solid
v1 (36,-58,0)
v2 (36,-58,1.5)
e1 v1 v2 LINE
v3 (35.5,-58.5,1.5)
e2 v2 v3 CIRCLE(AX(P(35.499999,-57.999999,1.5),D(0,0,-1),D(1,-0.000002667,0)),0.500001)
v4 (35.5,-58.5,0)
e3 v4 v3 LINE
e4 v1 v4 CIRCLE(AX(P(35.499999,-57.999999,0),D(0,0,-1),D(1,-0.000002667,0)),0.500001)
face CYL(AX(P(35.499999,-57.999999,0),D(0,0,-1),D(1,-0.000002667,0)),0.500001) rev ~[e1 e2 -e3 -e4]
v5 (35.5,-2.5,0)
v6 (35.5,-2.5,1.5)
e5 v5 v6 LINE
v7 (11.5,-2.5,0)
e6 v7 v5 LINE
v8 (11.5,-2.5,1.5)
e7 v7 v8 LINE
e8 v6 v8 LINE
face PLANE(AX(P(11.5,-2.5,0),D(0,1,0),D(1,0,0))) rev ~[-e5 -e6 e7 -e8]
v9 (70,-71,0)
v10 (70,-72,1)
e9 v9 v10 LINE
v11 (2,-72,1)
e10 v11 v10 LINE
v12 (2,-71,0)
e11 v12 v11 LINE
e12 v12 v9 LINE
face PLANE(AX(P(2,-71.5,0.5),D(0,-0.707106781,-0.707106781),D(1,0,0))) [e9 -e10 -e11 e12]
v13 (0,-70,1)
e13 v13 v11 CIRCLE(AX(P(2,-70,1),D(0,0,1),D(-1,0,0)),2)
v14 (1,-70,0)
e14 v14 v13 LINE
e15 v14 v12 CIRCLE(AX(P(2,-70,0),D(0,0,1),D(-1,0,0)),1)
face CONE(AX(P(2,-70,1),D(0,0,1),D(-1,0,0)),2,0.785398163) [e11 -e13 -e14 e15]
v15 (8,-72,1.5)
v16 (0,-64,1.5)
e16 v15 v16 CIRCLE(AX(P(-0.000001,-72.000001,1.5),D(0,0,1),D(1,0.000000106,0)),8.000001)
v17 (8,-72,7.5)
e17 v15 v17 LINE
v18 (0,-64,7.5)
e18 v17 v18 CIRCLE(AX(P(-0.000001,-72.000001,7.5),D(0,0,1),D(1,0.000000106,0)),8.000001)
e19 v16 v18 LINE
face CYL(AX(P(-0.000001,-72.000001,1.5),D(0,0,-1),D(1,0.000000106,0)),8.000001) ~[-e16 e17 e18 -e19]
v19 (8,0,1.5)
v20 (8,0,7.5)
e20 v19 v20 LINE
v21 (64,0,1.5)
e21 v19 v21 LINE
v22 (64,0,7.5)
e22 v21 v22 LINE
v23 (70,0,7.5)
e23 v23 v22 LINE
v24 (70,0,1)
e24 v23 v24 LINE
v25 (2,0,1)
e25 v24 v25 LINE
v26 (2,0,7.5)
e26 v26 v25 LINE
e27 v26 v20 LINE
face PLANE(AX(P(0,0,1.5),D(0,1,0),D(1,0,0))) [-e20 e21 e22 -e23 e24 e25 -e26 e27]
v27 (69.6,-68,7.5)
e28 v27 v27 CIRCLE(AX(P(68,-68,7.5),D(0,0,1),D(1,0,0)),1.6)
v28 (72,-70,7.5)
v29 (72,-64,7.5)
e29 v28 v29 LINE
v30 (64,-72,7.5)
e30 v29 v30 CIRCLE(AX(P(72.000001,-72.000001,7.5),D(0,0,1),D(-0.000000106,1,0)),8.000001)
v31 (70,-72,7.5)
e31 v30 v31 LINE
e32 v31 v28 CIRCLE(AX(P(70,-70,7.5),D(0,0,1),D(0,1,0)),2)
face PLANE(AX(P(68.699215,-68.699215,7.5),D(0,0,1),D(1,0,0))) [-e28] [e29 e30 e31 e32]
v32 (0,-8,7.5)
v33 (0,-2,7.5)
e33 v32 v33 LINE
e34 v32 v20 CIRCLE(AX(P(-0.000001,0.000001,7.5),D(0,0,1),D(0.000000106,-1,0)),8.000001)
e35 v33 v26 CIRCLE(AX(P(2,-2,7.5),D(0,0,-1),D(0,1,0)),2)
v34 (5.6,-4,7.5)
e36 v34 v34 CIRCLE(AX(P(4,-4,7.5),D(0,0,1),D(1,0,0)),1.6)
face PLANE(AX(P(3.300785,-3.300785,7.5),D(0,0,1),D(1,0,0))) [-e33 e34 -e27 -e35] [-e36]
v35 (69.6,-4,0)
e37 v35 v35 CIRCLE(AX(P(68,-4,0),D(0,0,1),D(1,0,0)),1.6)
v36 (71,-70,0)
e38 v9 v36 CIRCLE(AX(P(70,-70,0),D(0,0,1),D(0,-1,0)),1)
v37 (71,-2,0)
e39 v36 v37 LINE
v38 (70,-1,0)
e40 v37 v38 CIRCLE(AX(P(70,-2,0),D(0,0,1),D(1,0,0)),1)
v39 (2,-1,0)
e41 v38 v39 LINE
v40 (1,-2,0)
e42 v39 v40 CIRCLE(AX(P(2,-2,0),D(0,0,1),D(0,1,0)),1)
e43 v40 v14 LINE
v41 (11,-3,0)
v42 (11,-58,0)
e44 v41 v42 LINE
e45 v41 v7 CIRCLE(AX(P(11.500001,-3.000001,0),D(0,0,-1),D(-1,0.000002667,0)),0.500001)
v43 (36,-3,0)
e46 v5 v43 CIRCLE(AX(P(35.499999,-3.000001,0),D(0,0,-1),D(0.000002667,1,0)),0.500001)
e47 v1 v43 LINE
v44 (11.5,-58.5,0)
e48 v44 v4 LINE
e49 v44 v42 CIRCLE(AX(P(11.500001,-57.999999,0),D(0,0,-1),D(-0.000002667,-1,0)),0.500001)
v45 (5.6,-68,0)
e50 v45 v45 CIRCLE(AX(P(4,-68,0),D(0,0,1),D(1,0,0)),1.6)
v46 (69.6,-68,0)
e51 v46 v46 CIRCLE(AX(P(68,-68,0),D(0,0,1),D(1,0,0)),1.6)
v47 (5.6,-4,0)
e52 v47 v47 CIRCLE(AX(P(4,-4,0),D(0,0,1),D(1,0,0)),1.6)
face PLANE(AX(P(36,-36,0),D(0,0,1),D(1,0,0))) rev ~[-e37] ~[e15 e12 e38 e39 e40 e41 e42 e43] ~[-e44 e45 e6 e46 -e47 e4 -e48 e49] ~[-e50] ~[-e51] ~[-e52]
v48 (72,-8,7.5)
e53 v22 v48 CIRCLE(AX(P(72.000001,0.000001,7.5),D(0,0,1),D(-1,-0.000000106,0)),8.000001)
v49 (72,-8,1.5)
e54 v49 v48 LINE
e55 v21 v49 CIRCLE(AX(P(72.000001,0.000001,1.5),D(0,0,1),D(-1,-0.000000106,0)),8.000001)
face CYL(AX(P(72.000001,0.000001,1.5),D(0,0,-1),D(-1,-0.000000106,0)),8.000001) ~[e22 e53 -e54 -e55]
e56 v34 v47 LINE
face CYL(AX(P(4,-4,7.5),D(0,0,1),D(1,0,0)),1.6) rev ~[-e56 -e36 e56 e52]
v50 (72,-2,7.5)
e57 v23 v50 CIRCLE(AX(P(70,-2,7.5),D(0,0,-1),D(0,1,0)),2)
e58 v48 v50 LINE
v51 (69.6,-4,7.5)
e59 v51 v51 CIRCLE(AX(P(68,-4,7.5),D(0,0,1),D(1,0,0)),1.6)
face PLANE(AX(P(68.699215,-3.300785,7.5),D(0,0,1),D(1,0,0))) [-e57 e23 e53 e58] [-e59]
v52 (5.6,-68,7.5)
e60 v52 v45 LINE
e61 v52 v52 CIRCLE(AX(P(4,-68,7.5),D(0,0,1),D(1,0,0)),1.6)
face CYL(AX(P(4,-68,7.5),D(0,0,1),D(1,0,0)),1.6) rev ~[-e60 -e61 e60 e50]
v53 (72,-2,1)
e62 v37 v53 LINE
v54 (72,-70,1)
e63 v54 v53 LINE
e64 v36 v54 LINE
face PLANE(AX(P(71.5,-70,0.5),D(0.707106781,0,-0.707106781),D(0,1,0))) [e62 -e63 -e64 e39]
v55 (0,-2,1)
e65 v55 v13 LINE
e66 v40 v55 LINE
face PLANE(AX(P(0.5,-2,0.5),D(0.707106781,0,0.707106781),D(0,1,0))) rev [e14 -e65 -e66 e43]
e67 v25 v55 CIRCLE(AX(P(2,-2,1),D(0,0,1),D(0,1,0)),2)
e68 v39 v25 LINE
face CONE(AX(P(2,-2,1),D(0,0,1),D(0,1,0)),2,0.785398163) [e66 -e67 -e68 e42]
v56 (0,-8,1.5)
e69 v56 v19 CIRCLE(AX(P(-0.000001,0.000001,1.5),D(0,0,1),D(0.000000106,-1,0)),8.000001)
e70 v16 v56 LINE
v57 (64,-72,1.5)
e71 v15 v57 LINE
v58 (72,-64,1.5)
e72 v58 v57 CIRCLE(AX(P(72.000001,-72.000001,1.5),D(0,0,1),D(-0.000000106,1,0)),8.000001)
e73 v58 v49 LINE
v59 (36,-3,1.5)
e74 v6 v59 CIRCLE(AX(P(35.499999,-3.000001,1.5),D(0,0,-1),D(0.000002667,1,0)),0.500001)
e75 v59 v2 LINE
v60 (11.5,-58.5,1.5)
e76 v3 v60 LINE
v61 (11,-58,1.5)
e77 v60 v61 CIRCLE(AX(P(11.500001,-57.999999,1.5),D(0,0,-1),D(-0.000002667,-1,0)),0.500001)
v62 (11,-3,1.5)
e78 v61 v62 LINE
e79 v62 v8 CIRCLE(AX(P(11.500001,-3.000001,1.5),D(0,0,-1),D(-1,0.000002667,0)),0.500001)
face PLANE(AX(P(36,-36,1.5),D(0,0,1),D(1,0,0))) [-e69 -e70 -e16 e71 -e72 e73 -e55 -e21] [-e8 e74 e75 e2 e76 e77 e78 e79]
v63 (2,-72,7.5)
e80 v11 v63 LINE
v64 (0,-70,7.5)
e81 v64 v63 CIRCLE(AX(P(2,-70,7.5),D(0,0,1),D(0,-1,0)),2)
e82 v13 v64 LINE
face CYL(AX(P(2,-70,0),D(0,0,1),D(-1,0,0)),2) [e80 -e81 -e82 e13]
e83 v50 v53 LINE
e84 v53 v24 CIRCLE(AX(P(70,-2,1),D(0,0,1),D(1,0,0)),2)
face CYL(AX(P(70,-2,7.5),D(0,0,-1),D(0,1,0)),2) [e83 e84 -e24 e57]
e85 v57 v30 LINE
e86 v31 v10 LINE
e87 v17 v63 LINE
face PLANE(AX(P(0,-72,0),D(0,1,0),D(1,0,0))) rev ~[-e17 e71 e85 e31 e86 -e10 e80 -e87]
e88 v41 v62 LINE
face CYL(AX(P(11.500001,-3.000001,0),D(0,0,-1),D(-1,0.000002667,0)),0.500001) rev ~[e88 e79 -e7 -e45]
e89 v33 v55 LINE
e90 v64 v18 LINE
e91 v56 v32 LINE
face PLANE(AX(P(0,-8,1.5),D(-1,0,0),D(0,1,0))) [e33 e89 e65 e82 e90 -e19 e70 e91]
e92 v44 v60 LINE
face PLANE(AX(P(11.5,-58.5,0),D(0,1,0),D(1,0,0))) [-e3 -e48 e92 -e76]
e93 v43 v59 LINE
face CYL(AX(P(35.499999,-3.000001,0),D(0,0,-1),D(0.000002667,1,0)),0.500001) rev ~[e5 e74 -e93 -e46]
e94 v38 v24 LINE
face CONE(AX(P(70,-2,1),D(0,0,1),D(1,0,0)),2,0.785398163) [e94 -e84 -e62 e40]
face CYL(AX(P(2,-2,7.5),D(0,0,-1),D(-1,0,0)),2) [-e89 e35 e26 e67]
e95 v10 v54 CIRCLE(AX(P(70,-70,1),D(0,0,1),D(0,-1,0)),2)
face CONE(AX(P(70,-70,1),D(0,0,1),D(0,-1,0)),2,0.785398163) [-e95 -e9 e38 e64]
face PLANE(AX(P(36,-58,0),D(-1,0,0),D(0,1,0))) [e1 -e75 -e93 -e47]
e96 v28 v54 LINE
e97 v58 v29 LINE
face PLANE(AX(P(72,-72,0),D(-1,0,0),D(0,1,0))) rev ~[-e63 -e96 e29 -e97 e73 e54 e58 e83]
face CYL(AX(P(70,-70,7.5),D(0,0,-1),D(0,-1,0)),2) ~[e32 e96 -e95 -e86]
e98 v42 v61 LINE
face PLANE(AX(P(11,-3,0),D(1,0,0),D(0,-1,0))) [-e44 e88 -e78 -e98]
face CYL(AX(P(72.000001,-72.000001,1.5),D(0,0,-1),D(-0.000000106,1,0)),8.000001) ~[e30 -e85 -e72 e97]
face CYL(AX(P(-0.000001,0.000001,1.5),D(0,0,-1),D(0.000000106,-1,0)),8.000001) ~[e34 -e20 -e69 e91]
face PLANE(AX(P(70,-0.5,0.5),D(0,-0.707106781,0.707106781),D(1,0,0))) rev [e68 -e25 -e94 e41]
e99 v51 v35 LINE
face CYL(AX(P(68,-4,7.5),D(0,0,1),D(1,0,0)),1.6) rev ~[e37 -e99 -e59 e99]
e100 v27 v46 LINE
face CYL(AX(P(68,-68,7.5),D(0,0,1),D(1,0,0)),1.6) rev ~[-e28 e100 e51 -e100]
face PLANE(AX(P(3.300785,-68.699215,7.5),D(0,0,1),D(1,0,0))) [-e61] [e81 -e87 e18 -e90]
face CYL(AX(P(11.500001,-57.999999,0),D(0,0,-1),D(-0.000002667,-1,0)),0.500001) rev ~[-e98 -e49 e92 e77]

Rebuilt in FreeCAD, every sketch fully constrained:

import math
import FreeCAD as App
import Part
import Sketcher


def edges_at(feature, points):
    """Names of the edges that pass closest to the given points."""
    edges = feature.Shape.Edges
    near = lambda p: min(range(len(edges)), key=lambda i: edges[i].distToShape(Part.Vertex(*p))[0])
    return sorted({f"Edge{near(p) + 1}" for p in points})


def add_polygon(sketch, points):
    """Adds a closed chain of lines whose ends are joined by coincident constraints."""
    first, n = sketch.GeometryCount, len(points)
    for a, b in zip(points, points[1:] + points[:1]):
        sketch.addGeometry(Part.LineSegment(App.Vector(*a, 0), App.Vector(*b, 0)), False)
    for i in range(n):
        sketch.addConstraint(Sketcher.Constraint("Coincident", first + i, 2, first + (i + 1) % n, 1))

doc = App.newDocument("Part")
body = doc.addObject("PartDesign::Body", "Body")

sketch1 = doc.addObject("Sketcher::SketchObject", "Sketch")
body.addObject(sketch1)
sketch1.AttachmentSupport = (doc.XY_Plane, [""])
sketch1.MapMode = "FlatFace"
add_polygon(sketch1, [(0, 0), (0, -72), (72, -72), (72, 0)])
sketch1.addConstraint(Sketcher.Constraint("Vertical", 0))
sketch1.addConstraint(Sketcher.Constraint("Horizontal", 1))
sketch1.addConstraint(Sketcher.Constraint("Vertical", 2))
sketch1.addConstraint(Sketcher.Constraint("Horizontal", 3))
sketch1.addConstraint(Sketcher.Constraint("Coincident", 3, 2, -1, 1))
sketch1.addConstraint(Sketcher.Constraint("Equal", 3, 0))
sketch1.addConstraint(Sketcher.Constraint("DistanceX", 1, 1, 1, 2, 72.0))
pad1 = doc.addObject("PartDesign::Pad", "Pad")
body.addObject(pad1)
pad1.Profile = sketch1
pad1.Length = 1.5

sketch2 = doc.addObject("Sketcher::SketchObject", "Sketch001")
body.addObject(sketch2)
sketch2.AttachmentSupport = (doc.XY_Plane, [""])
sketch2.MapMode = "FlatFace"
sketch2.AttachmentOffset = App.Placement(App.Vector(0, 0, 1.5), App.Rotation())
sketch2.addGeometry(Part.ArcOfCircle(Part.Circle(App.Vector(0, 0, 0), App.Vector(0, 0, 1), 8), math.radians(-90), math.radians(0)), False)
sketch2.addGeometry(Part.LineSegment(App.Vector(8, 0, 0), App.Vector(0, 0, 0)), False)
sketch2.addGeometry(Part.LineSegment(App.Vector(0, 0, 0), App.Vector(0, -8, 0)), False)
sketch2.addGeometry(Part.ArcOfCircle(Part.Circle(App.Vector(0, -72, 0), App.Vector(0, 0, 1), 8), math.radians(0), math.radians(90)), False)
sketch2.addGeometry(Part.LineSegment(App.Vector(0, -64, 0), App.Vector(0, -72, 0)), False)
sketch2.addGeometry(Part.LineSegment(App.Vector(0, -72, 0), App.Vector(8, -72, 0)), False)
sketch2.addGeometry(Part.ArcOfCircle(Part.Circle(App.Vector(72, -72, 0), App.Vector(0, 0, 1), 8), math.radians(90), math.radians(180)), False)
sketch2.addGeometry(Part.LineSegment(App.Vector(64, -72, 0), App.Vector(72, -72, 0)), False)
sketch2.addGeometry(Part.LineSegment(App.Vector(72, -72, 0), App.Vector(72, -64, 0)), False)
sketch2.addGeometry(Part.ArcOfCircle(Part.Circle(App.Vector(72, 0, 0), App.Vector(0, 0, 1), 8), math.radians(-180), math.radians(-90)), False)
sketch2.addGeometry(Part.LineSegment(App.Vector(72, -8, 0), App.Vector(72, 0, 0)), False)
sketch2.addGeometry(Part.LineSegment(App.Vector(72, 0, 0), App.Vector(64, 0, 0)), False)
sketch2.addConstraint(Sketcher.Constraint("Coincident", 0, 2, 1, 1))
sketch2.addConstraint(Sketcher.Constraint("Coincident", 1, 2, 2, 1))
sketch2.addConstraint(Sketcher.Constraint("Coincident", 2, 2, 0, 1))
sketch2.addConstraint(Sketcher.Constraint("Coincident", 3, 2, 4, 1))
sketch2.addConstraint(Sketcher.Constraint("Coincident", 4, 2, 5, 1))
sketch2.addConstraint(Sketcher.Constraint("Coincident", 5, 2, 3, 1))
sketch2.addConstraint(Sketcher.Constraint("Coincident", 6, 2, 7, 1))
sketch2.addConstraint(Sketcher.Constraint("Coincident", 7, 2, 8, 1))
sketch2.addConstraint(Sketcher.Constraint("Coincident", 8, 2, 6, 1))
sketch2.addConstraint(Sketcher.Constraint("Coincident", 9, 2, 10, 1))
sketch2.addConstraint(Sketcher.Constraint("Coincident", 10, 2, 11, 1))
sketch2.addConstraint(Sketcher.Constraint("Coincident", 11, 2, 9, 1))
sketch2.addConstraint(Sketcher.Constraint("Horizontal", 1))
sketch2.addConstraint(Sketcher.Constraint("Vertical", 2))
sketch2.addConstraint(Sketcher.Constraint("Vertical", 4))
sketch2.addConstraint(Sketcher.Constraint("Horizontal", 5))
sketch2.addConstraint(Sketcher.Constraint("Horizontal", 7))
sketch2.addConstraint(Sketcher.Constraint("Vertical", 8))
sketch2.addConstraint(Sketcher.Constraint("Vertical", 10))
sketch2.addConstraint(Sketcher.Constraint("Horizontal", 11))
sketch2.addConstraint(Sketcher.Constraint("Coincident", 0, 3, -1, 1))
sketch2.addConstraint(Sketcher.Constraint("Coincident", 1, 2, -1, 1))
sketch2.addConstraint(Sketcher.Constraint("Coincident", 4, 2, 3, 3))
sketch2.addConstraint(Sketcher.Constraint("Coincident", 7, 2, 6, 3))
sketch2.addConstraint(Sketcher.Constraint("Coincident", 10, 2, 9, 3))
sketch2.addConstraint(Sketcher.Constraint("Equal", 0, 3))
sketch2.addConstraint(Sketcher.Constraint("Equal", 3, 6))
sketch2.addConstraint(Sketcher.Constraint("Equal", 6, 9))
sketch2.addConstraint(Sketcher.Constraint("PointOnObject", 3, 3, -2))
sketch2.addConstraint(Sketcher.Constraint("PointOnObject", 9, 3, -1))
sketch2.addConstraint(Sketcher.Constraint("Horizontal", 3, 3, 6, 3))
sketch2.addConstraint(Sketcher.Constraint("Vertical", 6, 3, 9, 3))
sketch2.addConstraint(Sketcher.Constraint("Radius", 0, 8.000001))
sketch2.addConstraint(Sketcher.Constraint("DistanceY", 3, 3, -1, 1, 72.000001))
sketch2.addConstraint(Sketcher.Constraint("DistanceX", -1, 1, 6, 3, 72.000001))
pad2 = doc.addObject("PartDesign::Pad", "Pad001")
body.addObject(pad2)
pad2.Profile = sketch2
pad2.Length = 6

sketch3 = doc.addObject("Sketcher::SketchObject", "Sketch002")
body.addObject(sketch3)
sketch3.AttachmentSupport = (doc.XY_Plane, [""])
sketch3.MapMode = "FlatFace"
sketch3.AttachmentOffset = App.Placement(App.Vector(0, 0, 7.5), App.Rotation())
sketch3.addGeometry(Part.Circle(App.Vector(4, -4, 0), App.Vector(0, 0, 1), 1.6), False)
sketch3.addGeometry(Part.Circle(App.Vector(68, -4, 0), App.Vector(0, 0, 1), 1.6), False)
sketch3.addGeometry(Part.Circle(App.Vector(68, -68, 0), App.Vector(0, 0, 1), 1.6), False)
sketch3.addGeometry(Part.Circle(App.Vector(4, -68, 0), App.Vector(0, 0, 1), 1.6), False)
sketch3.addConstraint(Sketcher.Constraint("Equal", 0, 1))
sketch3.addConstraint(Sketcher.Constraint("Equal", 1, 2))
sketch3.addConstraint(Sketcher.Constraint("Equal", 2, 3))
sketch3.addConstraint(Sketcher.Constraint("Horizontal", 0, 3, 1, 3))
sketch3.addConstraint(Sketcher.Constraint("Horizontal", 2, 3, 3, 3))
sketch3.addConstraint(Sketcher.Constraint("Vertical", 1, 3, 2, 3))
sketch3.addConstraint(Sketcher.Constraint("Vertical", 0, 3, 3, 3))
sketch3.addConstraint(Sketcher.Constraint("Diameter", 0, 3.2))
sketch3.addConstraint(Sketcher.Constraint("DistanceX", -1, 1, 0, 3, 4.0))
sketch3.addConstraint(Sketcher.Constraint("DistanceY", 0, 3, -1, 1, 4.0))
sketch3.addConstraint(Sketcher.Constraint("DistanceX", -1, 1, 1, 3, 68.0))
sketch3.addConstraint(Sketcher.Constraint("DistanceY", 2, 3, -1, 1, 68.0))
pocket1 = doc.addObject("PartDesign::Pocket", "Pocket")
body.addObject(pocket1)
pocket1.Profile = sketch3
pocket1.Type = "ThroughAll"
doc.recompute()

fillet = doc.addObject("PartDesign::Fillet", "Fillet")
body.addObject(fillet)
fillet.Base = (pocket1, edges_at(pocket1, [
    (0, 0, 3.75),
    (72, 0, 3.75),
    (0, -72, 3.75),
    (72, -72, 3.75),
]))
fillet.Radius = 2
doc.recompute()

chamfer = doc.addObject("PartDesign::Chamfer", "Chamfer")
body.addObject(chamfer)
chamfer.Base = (fillet, edges_at(fillet, [(36, -72, 0)]))
chamfer.Size = 1

sketch4 = doc.addObject("Sketcher::SketchObject", "Sketch003")
body.addObject(sketch4)
sketch4.AttachmentSupport = (doc.XY_Plane, [""])
sketch4.MapMode = "FlatFace"
sketch4.addGeometry(Part.ArcOfCircle(Part.Circle(App.Vector(11.5, -3, 0), App.Vector(0, 0, 1), 0.5), math.radians(90), math.radians(180)), False)
sketch4.addGeometry(Part.LineSegment(App.Vector(11.5, -2.5, 0), App.Vector(35.5, -2.5, 0)), False)
sketch4.addGeometry(Part.ArcOfCircle(Part.Circle(App.Vector(35.5, -3, 0), App.Vector(0, 0, 1), 0.5), math.radians(0), math.radians(90)), False)
sketch4.addGeometry(Part.LineSegment(App.Vector(36, -3, 0), App.Vector(36, -58, 0)), False)
sketch4.addGeometry(Part.ArcOfCircle(Part.Circle(App.Vector(35.5, -58, 0), App.Vector(0, 0, 1), 0.5), math.radians(-90), math.radians(0)), False)
sketch4.addGeometry(Part.LineSegment(App.Vector(35.5, -58.5, 0), App.Vector(11.5, -58.5, 0)), False)
sketch4.addGeometry(Part.ArcOfCircle(Part.Circle(App.Vector(11.5, -58, 0), App.Vector(0, 0, 1), 0.5), math.radians(-180), math.radians(-90)), False)
sketch4.addGeometry(Part.LineSegment(App.Vector(11, -58, 0), App.Vector(11, -3, 0)), False)
sketch4.addConstraint(Sketcher.Constraint("Coincident", 0, 1, 1, 1))
sketch4.addConstraint(Sketcher.Constraint("Coincident", 1, 2, 2, 2))
sketch4.addConstraint(Sketcher.Constraint("Coincident", 2, 1, 3, 1))
sketch4.addConstraint(Sketcher.Constraint("Coincident", 3, 2, 4, 2))
sketch4.addConstraint(Sketcher.Constraint("Coincident", 4, 1, 5, 1))
sketch4.addConstraint(Sketcher.Constraint("Coincident", 5, 2, 6, 2))
sketch4.addConstraint(Sketcher.Constraint("Coincident", 6, 1, 7, 1))
sketch4.addConstraint(Sketcher.Constraint("Coincident", 7, 2, 0, 2))
sketch4.addConstraint(Sketcher.Constraint("Horizontal", 1))
sketch4.addConstraint(Sketcher.Constraint("Vertical", 3))
sketch4.addConstraint(Sketcher.Constraint("Horizontal", 5))
sketch4.addConstraint(Sketcher.Constraint("Vertical", 7))
sketch4.addConstraint(Sketcher.Constraint("Equal", 0, 2))
sketch4.addConstraint(Sketcher.Constraint("Equal", 2, 4))
sketch4.addConstraint(Sketcher.Constraint("Equal", 4, 6))
sketch4.addConstraint(Sketcher.Constraint("Horizontal", 0, 3, 2, 1))
sketch4.addConstraint(Sketcher.Constraint("Horizontal", 6, 3, 3, 2))
sketch4.addConstraint(Sketcher.Constraint("Horizontal", 3, 2, 6, 1))
sketch4.addConstraint(Sketcher.Constraint("Horizontal", 2, 1, 7, 2))
sketch4.addConstraint(Sketcher.Constraint("Vertical", 6, 3, 0, 1))
sketch4.addConstraint(Sketcher.Constraint("Vertical", 4, 3, 1, 2))
sketch4.addConstraint(Sketcher.Constraint("Vertical", 1, 2, 4, 1))
sketch4.addConstraint(Sketcher.Constraint("Vertical", 0, 1, 5, 2))
sketch4.addConstraint(Sketcher.Constraint("Radius", 0, 0.500001))
sketch4.addConstraint(Sketcher.Constraint("DistanceX", 1, 1, 1, 2, 24.0))
sketch4.addConstraint(Sketcher.Constraint("DistanceY", 3, 2, 3, 1, 55.0))
sketch4.addConstraint(Sketcher.Constraint("DistanceY", 0, 3, -1, 1, 3.000001))
sketch4.addConstraint(Sketcher.Constraint("DistanceX", -1, 1, 2, 1, 36.0))
pocket2 = doc.addObject("PartDesign::Pocket", "Pocket001")
body.addObject(pocket2)
pocket2.Profile = sketch4
pocket2.Length = 5
pocket2.Reversed = True

doc.recompute()
